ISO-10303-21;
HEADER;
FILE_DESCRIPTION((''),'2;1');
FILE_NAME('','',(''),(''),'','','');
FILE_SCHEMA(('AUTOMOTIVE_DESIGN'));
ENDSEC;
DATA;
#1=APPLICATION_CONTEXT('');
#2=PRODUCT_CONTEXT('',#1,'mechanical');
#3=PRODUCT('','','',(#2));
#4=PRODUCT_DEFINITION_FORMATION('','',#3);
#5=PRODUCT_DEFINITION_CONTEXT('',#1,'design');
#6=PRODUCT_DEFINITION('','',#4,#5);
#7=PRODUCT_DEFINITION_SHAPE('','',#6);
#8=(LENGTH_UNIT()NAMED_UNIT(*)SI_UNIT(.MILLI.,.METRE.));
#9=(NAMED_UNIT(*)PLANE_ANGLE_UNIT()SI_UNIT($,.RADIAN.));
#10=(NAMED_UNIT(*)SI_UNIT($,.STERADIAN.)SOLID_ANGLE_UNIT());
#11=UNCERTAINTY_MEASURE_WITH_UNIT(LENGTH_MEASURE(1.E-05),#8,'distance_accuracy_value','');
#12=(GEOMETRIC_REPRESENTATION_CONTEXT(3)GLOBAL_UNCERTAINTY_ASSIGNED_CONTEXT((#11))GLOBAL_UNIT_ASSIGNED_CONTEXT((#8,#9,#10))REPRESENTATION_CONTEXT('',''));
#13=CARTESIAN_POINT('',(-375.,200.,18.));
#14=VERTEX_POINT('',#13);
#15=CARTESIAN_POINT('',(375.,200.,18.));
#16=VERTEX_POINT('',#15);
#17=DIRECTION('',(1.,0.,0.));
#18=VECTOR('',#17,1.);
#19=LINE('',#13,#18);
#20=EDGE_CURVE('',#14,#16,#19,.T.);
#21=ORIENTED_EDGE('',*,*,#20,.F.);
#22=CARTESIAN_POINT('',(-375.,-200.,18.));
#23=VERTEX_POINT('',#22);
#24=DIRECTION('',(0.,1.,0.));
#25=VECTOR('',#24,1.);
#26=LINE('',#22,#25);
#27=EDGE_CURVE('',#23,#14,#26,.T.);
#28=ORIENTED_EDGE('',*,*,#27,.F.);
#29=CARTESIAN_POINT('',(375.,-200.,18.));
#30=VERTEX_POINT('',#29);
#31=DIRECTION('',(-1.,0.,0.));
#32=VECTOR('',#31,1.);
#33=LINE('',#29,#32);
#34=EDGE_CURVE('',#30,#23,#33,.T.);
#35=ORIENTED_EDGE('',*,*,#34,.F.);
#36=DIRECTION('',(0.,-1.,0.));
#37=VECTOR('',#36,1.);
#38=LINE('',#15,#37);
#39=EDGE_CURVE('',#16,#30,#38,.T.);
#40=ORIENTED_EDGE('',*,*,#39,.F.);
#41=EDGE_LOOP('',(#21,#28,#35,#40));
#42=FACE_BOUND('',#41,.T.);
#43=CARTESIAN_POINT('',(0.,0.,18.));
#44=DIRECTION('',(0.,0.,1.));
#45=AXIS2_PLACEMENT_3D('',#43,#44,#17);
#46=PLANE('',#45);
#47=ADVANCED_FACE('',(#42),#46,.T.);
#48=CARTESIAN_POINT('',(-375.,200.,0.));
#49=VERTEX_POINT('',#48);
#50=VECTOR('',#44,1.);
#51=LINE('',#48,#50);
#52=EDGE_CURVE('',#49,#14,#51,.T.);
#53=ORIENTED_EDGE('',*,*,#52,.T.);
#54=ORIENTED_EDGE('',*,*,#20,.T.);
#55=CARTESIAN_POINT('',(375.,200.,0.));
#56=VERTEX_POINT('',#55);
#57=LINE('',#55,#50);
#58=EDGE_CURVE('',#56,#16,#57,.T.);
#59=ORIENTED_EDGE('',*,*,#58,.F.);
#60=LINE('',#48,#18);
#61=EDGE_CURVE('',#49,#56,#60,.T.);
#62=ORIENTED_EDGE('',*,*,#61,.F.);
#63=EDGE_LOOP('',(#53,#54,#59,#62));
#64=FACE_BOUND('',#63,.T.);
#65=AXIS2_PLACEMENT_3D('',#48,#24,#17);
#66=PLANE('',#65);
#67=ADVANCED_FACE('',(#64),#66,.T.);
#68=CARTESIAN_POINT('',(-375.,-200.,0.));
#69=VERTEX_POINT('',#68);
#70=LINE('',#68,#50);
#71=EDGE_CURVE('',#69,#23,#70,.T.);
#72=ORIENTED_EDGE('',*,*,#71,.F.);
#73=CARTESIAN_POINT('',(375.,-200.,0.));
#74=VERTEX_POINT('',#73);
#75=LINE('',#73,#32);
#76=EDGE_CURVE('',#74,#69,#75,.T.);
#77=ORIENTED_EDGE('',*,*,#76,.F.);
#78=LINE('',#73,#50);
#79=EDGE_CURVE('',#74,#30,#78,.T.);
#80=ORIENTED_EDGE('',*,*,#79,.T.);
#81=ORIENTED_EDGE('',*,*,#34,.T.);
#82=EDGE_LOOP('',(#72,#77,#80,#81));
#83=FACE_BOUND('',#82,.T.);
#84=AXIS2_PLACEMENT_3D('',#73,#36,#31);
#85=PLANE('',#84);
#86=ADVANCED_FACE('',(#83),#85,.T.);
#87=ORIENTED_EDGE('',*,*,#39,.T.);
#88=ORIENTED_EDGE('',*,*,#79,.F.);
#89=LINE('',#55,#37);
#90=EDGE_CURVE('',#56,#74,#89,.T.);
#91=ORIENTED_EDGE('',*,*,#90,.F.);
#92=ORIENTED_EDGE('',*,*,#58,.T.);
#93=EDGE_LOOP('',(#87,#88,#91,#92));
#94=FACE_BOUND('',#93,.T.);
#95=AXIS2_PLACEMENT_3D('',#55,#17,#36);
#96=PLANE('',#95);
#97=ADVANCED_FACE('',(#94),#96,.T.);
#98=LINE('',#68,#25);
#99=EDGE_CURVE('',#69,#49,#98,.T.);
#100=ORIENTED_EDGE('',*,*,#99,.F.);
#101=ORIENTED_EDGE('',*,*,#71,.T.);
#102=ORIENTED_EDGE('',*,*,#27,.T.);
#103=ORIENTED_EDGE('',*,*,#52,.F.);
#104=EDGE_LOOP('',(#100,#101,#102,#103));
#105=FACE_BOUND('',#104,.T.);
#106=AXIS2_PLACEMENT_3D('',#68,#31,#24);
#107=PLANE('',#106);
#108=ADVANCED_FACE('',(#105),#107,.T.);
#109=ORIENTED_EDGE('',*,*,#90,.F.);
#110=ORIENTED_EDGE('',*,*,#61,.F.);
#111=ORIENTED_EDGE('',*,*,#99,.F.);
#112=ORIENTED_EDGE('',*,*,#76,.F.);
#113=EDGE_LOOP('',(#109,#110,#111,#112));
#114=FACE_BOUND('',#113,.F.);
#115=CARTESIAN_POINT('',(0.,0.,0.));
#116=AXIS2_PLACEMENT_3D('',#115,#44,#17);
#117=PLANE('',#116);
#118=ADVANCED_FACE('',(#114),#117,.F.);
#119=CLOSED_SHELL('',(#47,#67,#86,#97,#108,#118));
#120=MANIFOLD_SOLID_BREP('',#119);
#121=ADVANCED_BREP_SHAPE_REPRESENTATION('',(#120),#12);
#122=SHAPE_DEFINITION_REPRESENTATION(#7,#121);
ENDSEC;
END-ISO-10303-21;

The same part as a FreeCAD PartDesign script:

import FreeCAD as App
import Part
import Sketcher
Q = App.Units.Quantity


def add_polygon(sketch, points):
    """Adds a closed chain of lines whose ends are joined by coincident constraints."""
    first, n = sketch.GeometryCount, len(points)
    for a, b in zip(points, points[1:] + points[:1]):
        sketch.addGeometry(Part.LineSegment(App.Vector(*a, 0), App.Vector(*b, 0)), False)
    for i in range(n):
        sketch.addConstraint(Sketcher.Constraint("Coincident", first + i, 2, first + (i + 1) % n, 1))

doc = App.newDocument("Part")
body = doc.addObject("PartDesign::Body", "Body")

# Sketch on XY plane
sketch1 = body.newObject("Sketcher::SketchObject", "Sketch")
sketch1.AttachmentSupport = (doc.getObject("XY_Plane"), [""])
sketch1.MapMode = "FlatFace"
add_polygon(sketch1, [(375, 200), (-375, 200), (-375, -200), (375, -200)])  # lines 0-3
sketch1.addConstraint([
    Sketcher.Constraint("Horizontal", 0),
    Sketcher.Constraint("Vertical", 1),
    Sketcher.Constraint("Horizontal", 2),
    Sketcher.Constraint("Vertical", 3),
    Sketcher.Constraint("Symmetric", 0, 2, 2, 2, -1, 1),
    Sketcher.Constraint("DistanceX", 0, 2, 0, 1, Q("750 mm")),
    Sketcher.Constraint("DistanceY", 1, 2, 1, 1, Q("400 mm")),
])
pad1 = body.newObject("PartDesign::Pad", "Pad")
pad1.Profile = sketch1
pad1.Length = 18

doc.recompute()
